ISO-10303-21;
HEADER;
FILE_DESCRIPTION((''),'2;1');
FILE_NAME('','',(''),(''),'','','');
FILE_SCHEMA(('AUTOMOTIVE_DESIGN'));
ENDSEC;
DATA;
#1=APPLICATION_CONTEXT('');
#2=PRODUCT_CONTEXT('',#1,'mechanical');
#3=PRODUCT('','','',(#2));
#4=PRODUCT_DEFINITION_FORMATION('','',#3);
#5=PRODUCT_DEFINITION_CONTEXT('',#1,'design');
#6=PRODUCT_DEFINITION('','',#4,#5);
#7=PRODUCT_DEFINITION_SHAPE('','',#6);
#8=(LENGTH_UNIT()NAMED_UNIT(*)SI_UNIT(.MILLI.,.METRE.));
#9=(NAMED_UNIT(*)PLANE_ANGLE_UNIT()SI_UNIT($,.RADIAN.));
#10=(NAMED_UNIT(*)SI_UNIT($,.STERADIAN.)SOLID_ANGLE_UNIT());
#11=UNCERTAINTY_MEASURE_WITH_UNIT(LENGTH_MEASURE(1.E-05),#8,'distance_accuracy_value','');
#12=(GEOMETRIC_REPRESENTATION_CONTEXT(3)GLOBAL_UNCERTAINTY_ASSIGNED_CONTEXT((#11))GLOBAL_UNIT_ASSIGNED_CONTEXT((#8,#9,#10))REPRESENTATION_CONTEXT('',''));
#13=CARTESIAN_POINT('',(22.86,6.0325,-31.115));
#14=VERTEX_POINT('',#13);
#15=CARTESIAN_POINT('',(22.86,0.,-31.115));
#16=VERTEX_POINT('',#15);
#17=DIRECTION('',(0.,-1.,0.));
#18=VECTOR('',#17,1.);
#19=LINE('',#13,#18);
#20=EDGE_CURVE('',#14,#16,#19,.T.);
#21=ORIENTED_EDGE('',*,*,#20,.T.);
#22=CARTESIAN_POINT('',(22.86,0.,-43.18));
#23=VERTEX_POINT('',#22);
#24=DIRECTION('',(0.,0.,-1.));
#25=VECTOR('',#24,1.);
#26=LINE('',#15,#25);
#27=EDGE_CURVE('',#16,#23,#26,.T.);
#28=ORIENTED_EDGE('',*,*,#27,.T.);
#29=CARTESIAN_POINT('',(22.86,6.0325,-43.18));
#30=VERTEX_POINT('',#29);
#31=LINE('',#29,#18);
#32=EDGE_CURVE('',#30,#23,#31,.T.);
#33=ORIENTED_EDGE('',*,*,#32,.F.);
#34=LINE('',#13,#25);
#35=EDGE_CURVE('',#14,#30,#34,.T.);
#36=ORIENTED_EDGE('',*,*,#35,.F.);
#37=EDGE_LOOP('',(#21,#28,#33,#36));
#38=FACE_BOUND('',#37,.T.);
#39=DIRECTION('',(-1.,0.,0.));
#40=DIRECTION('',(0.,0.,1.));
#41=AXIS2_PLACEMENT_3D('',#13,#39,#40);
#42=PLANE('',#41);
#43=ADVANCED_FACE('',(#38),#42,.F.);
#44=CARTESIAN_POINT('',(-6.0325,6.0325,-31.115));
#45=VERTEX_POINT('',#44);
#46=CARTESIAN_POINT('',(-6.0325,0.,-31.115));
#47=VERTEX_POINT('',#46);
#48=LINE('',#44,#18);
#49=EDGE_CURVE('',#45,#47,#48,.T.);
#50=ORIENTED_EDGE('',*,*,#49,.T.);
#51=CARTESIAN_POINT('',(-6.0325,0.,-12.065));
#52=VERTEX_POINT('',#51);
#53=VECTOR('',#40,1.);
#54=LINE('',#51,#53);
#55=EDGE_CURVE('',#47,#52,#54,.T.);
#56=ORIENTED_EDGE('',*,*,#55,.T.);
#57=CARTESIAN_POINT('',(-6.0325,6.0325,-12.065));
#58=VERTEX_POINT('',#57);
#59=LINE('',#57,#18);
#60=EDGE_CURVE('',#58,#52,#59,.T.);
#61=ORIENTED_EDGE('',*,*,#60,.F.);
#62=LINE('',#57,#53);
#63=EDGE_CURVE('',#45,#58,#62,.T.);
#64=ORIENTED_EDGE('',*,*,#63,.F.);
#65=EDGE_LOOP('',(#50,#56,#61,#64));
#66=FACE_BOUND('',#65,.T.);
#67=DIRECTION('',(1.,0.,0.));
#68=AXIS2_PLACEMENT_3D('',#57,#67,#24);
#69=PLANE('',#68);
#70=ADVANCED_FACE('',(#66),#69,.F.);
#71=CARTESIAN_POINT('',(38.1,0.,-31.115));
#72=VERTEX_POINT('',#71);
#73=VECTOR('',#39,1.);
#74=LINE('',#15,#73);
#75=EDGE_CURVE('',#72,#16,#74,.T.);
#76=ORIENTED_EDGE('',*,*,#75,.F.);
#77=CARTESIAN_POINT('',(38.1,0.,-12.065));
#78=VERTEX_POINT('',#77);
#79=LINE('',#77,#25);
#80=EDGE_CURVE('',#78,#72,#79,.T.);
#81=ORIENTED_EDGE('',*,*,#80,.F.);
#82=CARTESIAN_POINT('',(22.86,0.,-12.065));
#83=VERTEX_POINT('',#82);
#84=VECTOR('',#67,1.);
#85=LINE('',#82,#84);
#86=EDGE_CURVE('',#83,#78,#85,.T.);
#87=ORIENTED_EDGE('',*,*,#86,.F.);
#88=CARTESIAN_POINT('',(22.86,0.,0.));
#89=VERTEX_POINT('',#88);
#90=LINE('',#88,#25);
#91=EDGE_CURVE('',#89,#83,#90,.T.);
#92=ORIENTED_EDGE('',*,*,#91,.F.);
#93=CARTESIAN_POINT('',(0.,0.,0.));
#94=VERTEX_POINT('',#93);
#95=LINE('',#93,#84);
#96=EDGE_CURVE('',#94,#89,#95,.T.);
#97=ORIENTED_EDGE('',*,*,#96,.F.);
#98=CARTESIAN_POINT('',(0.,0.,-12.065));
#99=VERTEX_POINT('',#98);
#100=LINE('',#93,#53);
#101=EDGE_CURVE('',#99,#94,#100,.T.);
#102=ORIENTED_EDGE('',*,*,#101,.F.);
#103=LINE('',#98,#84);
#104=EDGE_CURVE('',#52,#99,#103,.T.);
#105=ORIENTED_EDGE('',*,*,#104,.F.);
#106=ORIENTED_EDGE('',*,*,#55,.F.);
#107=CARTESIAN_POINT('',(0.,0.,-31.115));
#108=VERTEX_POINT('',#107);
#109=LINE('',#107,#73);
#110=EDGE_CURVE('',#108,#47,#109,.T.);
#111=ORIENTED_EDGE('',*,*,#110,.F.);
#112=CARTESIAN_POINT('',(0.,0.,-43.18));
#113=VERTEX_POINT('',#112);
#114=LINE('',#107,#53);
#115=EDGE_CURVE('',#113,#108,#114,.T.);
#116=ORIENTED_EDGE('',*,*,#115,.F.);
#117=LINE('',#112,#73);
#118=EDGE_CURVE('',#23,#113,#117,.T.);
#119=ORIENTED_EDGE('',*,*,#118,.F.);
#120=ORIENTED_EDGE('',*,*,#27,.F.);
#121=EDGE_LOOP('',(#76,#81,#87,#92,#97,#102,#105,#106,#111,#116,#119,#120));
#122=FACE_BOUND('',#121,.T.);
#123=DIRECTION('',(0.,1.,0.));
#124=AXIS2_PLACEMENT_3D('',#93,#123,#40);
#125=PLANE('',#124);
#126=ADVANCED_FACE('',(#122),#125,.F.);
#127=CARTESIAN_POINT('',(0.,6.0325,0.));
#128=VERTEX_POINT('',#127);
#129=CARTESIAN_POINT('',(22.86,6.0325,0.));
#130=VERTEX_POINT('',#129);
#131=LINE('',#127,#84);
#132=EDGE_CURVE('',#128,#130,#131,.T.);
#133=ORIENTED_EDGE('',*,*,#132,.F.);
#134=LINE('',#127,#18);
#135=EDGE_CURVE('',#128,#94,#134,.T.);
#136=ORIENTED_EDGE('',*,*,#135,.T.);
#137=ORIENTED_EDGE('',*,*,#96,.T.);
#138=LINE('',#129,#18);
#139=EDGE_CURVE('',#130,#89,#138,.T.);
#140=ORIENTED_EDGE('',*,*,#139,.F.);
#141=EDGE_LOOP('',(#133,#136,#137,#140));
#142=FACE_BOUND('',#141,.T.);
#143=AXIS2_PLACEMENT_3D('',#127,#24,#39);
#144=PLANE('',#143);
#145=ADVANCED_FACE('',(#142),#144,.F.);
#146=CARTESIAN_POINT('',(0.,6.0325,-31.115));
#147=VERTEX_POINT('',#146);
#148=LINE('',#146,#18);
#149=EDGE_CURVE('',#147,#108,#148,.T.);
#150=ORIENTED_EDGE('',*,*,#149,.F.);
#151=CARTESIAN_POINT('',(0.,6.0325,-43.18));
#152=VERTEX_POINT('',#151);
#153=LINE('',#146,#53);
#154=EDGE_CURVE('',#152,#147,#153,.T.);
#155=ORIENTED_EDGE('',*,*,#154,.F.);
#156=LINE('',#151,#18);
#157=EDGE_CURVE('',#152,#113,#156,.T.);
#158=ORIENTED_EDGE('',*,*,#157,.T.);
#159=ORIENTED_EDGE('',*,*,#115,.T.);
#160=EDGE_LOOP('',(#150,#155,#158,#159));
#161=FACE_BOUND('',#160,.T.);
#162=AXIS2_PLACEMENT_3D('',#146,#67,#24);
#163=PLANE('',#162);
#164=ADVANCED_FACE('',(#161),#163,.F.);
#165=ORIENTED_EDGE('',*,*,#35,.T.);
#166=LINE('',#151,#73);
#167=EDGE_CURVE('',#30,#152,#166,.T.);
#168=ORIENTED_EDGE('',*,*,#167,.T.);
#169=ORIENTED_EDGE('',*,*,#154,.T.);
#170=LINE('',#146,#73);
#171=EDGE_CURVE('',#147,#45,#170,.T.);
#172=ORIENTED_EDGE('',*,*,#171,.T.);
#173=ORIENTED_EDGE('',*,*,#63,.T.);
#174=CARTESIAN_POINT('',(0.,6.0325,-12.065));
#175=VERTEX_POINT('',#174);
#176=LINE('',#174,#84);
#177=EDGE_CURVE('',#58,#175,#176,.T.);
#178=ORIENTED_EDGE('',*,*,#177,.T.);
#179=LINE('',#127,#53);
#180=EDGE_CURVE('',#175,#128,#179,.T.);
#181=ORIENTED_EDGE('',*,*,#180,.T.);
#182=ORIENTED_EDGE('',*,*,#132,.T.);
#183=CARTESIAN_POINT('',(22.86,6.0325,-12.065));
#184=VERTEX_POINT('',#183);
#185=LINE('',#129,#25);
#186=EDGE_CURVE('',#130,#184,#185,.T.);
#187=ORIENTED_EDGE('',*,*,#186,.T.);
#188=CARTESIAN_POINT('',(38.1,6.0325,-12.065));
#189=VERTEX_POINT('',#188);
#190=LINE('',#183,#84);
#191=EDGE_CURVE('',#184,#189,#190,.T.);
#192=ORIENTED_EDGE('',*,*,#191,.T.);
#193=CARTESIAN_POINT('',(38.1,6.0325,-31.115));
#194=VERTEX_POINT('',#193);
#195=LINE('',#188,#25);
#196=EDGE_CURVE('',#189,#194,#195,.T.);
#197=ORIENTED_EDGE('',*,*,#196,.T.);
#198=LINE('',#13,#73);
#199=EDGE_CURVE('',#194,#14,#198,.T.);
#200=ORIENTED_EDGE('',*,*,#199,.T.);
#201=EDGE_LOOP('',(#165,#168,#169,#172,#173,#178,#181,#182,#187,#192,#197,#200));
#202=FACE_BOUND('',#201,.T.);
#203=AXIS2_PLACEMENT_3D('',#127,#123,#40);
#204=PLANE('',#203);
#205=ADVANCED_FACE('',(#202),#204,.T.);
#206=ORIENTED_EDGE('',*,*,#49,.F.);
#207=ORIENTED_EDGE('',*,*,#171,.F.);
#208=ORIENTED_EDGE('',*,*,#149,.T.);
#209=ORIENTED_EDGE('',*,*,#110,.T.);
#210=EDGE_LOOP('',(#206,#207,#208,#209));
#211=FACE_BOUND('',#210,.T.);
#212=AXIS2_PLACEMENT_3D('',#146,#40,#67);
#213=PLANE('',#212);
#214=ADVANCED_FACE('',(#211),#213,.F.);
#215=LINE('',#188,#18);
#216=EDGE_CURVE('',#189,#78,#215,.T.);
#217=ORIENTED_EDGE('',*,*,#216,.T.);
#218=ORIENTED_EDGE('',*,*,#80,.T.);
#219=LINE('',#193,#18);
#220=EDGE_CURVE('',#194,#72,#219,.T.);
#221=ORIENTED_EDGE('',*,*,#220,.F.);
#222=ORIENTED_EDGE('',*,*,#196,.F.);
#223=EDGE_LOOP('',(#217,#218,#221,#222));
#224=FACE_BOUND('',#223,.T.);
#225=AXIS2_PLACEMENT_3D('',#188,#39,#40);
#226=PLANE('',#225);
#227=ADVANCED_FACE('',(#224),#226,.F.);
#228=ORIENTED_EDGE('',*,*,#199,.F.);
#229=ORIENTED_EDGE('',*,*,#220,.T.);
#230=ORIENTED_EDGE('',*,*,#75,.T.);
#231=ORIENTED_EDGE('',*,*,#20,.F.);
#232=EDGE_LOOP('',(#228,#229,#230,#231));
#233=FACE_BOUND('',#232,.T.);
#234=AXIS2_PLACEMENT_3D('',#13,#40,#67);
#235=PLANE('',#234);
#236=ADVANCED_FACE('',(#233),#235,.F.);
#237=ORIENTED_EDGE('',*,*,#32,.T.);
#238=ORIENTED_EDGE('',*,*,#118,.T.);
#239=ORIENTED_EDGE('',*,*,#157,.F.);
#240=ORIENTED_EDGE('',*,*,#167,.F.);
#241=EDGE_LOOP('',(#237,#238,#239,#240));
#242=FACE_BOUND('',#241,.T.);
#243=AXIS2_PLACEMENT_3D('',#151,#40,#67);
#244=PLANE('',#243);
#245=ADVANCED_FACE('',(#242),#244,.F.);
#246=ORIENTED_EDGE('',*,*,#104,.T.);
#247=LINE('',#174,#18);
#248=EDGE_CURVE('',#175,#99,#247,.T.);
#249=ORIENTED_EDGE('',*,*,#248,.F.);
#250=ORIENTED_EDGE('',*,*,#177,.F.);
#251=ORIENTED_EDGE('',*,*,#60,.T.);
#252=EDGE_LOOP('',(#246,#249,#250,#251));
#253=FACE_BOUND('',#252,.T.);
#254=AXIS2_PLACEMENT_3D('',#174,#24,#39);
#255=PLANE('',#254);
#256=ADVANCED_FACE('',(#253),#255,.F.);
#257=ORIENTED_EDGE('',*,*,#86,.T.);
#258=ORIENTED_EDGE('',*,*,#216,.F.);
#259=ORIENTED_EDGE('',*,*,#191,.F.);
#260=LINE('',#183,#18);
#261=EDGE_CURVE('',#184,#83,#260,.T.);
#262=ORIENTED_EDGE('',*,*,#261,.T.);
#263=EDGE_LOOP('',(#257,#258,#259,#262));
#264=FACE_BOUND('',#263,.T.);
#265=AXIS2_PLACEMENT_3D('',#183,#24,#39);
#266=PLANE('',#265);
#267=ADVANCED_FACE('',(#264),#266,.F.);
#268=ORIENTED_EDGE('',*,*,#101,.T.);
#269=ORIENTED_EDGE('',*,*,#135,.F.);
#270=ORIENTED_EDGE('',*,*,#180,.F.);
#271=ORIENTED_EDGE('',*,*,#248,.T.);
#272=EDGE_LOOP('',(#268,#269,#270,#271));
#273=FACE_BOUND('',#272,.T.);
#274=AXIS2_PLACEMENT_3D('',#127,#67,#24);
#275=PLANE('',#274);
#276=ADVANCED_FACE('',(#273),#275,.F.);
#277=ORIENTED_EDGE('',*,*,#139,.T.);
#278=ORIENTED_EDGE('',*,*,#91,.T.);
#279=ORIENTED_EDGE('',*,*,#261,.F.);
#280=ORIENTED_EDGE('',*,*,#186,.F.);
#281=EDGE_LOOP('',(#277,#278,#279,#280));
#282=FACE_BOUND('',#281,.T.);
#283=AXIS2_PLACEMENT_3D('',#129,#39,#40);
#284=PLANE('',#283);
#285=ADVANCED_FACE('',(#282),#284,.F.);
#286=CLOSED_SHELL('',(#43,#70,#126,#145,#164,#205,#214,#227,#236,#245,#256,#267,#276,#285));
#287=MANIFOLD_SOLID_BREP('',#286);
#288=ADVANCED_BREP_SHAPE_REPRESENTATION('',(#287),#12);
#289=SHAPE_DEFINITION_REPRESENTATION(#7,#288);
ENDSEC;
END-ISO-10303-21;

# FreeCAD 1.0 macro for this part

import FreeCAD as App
import Part
import Sketcher

V = App.Vector
Q = App.Units.Quantity


def add_polygon(sketch, points):
    """Adds a closed chain of lines whose ends are joined by coincident constraints."""
    first, n = sketch.GeometryCount, len(points)
    for a, b in zip(points, points[1:] + points[:1]):
        sketch.addGeometry(Part.LineSegment(App.Vector(*a, 0), App.Vector(*b, 0)), False)
    for i in range(n):
        sketch.addConstraint(Sketcher.Constraint("Coincident", first + i, 2, first + (i + 1) % n, 1))

doc = App.newDocument("Part")
body = doc.addObject("PartDesign::Body", "Body")

# Sketch on XZ plane
sketch1 = body.newObject("Sketcher::SketchObject", "Sketch")
sketch1.AttachmentSupport = (doc.getObject("XZ_Plane"), [""])
sketch1.MapMode = "FlatFace"
add_polygon(sketch1, [(0, 0), (22.86, 0), (22.86, -12.065), (38.1, -12.065), (38.1, -31.115), (22.86, -31.115), (22.86, -43.18), (0, -43.18), (0, -31.115), (-6.0325, -31.115), (-6.0325, -12.065), (0, -12.065)])  # lines 0-11
sketch1.addConstraint(Sketcher.Constraint("Horizontal", 0))
sketch1.addConstraint(Sketcher.Constraint("Vertical", 1))
sketch1.addConstraint(Sketcher.Constraint("Horizontal", 2))
sketch1.addConstraint(Sketcher.Constraint("Vertical", 3))
sketch1.addConstraint(Sketcher.Constraint("Horizontal", 4))
sketch1.addConstraint(Sketcher.Constraint("Vertical", 5))
sketch1.addConstraint(Sketcher.Constraint("Horizontal", 6))
sketch1.addConstraint(Sketcher.Constraint("Vertical", 7))
sketch1.addConstraint(Sketcher.Constraint("Horizontal", 8))
sketch1.addConstraint(Sketcher.Constraint("Vertical", 9))
sketch1.addConstraint(Sketcher.Constraint("Horizontal", 10))
sketch1.addConstraint(Sketcher.Constraint("Vertical", 11))
sketch1.addConstraint(Sketcher.Constraint("Coincident", 11, 2, -1, 1))
sketch1.addConstraint(Sketcher.Constraint("PointOnObject", 6, 2, -2))
sketch1.addConstraint(Sketcher.Constraint("Horizontal", 4, 2, 7, 2))
sketch1.addConstraint(Sketcher.Constraint("Horizontal", 2, 2, 9, 2))
sketch1.addConstraint(Sketcher.Constraint("Vertical", 1, 2, 4, 2))
sketch1.addConstraint(Sketcher.Constraint("Equal", 1, 5))
sketch1.addConstraint(Sketcher.Constraint("DistanceX", 0, 1, 0, 2, Q("0.9 in")))
sketch1.addConstraint(Sketcher.Constraint("DistanceX", 2, 1, 2, 2, Q("0.6 in")))
sketch1.addConstraint(Sketcher.Constraint("DistanceY", 3, 2, 3, 1, Q("0.75 in")))
sketch1.addConstraint(Sketcher.Constraint("DistanceY", 5, 2, -1, 1, Q("1.7 in")))
sketch1.addConstraint(Sketcher.Constraint("DistanceX", 8, 2, 8, 1, Q("0.2375 in")))
pad1 = body.newObject("PartDesign::Pad", "Pad")
pad1.Profile = sketch1
pad1.Length = Q("0.2375 in")
pad1.Reversed = True

doc.recompute()
